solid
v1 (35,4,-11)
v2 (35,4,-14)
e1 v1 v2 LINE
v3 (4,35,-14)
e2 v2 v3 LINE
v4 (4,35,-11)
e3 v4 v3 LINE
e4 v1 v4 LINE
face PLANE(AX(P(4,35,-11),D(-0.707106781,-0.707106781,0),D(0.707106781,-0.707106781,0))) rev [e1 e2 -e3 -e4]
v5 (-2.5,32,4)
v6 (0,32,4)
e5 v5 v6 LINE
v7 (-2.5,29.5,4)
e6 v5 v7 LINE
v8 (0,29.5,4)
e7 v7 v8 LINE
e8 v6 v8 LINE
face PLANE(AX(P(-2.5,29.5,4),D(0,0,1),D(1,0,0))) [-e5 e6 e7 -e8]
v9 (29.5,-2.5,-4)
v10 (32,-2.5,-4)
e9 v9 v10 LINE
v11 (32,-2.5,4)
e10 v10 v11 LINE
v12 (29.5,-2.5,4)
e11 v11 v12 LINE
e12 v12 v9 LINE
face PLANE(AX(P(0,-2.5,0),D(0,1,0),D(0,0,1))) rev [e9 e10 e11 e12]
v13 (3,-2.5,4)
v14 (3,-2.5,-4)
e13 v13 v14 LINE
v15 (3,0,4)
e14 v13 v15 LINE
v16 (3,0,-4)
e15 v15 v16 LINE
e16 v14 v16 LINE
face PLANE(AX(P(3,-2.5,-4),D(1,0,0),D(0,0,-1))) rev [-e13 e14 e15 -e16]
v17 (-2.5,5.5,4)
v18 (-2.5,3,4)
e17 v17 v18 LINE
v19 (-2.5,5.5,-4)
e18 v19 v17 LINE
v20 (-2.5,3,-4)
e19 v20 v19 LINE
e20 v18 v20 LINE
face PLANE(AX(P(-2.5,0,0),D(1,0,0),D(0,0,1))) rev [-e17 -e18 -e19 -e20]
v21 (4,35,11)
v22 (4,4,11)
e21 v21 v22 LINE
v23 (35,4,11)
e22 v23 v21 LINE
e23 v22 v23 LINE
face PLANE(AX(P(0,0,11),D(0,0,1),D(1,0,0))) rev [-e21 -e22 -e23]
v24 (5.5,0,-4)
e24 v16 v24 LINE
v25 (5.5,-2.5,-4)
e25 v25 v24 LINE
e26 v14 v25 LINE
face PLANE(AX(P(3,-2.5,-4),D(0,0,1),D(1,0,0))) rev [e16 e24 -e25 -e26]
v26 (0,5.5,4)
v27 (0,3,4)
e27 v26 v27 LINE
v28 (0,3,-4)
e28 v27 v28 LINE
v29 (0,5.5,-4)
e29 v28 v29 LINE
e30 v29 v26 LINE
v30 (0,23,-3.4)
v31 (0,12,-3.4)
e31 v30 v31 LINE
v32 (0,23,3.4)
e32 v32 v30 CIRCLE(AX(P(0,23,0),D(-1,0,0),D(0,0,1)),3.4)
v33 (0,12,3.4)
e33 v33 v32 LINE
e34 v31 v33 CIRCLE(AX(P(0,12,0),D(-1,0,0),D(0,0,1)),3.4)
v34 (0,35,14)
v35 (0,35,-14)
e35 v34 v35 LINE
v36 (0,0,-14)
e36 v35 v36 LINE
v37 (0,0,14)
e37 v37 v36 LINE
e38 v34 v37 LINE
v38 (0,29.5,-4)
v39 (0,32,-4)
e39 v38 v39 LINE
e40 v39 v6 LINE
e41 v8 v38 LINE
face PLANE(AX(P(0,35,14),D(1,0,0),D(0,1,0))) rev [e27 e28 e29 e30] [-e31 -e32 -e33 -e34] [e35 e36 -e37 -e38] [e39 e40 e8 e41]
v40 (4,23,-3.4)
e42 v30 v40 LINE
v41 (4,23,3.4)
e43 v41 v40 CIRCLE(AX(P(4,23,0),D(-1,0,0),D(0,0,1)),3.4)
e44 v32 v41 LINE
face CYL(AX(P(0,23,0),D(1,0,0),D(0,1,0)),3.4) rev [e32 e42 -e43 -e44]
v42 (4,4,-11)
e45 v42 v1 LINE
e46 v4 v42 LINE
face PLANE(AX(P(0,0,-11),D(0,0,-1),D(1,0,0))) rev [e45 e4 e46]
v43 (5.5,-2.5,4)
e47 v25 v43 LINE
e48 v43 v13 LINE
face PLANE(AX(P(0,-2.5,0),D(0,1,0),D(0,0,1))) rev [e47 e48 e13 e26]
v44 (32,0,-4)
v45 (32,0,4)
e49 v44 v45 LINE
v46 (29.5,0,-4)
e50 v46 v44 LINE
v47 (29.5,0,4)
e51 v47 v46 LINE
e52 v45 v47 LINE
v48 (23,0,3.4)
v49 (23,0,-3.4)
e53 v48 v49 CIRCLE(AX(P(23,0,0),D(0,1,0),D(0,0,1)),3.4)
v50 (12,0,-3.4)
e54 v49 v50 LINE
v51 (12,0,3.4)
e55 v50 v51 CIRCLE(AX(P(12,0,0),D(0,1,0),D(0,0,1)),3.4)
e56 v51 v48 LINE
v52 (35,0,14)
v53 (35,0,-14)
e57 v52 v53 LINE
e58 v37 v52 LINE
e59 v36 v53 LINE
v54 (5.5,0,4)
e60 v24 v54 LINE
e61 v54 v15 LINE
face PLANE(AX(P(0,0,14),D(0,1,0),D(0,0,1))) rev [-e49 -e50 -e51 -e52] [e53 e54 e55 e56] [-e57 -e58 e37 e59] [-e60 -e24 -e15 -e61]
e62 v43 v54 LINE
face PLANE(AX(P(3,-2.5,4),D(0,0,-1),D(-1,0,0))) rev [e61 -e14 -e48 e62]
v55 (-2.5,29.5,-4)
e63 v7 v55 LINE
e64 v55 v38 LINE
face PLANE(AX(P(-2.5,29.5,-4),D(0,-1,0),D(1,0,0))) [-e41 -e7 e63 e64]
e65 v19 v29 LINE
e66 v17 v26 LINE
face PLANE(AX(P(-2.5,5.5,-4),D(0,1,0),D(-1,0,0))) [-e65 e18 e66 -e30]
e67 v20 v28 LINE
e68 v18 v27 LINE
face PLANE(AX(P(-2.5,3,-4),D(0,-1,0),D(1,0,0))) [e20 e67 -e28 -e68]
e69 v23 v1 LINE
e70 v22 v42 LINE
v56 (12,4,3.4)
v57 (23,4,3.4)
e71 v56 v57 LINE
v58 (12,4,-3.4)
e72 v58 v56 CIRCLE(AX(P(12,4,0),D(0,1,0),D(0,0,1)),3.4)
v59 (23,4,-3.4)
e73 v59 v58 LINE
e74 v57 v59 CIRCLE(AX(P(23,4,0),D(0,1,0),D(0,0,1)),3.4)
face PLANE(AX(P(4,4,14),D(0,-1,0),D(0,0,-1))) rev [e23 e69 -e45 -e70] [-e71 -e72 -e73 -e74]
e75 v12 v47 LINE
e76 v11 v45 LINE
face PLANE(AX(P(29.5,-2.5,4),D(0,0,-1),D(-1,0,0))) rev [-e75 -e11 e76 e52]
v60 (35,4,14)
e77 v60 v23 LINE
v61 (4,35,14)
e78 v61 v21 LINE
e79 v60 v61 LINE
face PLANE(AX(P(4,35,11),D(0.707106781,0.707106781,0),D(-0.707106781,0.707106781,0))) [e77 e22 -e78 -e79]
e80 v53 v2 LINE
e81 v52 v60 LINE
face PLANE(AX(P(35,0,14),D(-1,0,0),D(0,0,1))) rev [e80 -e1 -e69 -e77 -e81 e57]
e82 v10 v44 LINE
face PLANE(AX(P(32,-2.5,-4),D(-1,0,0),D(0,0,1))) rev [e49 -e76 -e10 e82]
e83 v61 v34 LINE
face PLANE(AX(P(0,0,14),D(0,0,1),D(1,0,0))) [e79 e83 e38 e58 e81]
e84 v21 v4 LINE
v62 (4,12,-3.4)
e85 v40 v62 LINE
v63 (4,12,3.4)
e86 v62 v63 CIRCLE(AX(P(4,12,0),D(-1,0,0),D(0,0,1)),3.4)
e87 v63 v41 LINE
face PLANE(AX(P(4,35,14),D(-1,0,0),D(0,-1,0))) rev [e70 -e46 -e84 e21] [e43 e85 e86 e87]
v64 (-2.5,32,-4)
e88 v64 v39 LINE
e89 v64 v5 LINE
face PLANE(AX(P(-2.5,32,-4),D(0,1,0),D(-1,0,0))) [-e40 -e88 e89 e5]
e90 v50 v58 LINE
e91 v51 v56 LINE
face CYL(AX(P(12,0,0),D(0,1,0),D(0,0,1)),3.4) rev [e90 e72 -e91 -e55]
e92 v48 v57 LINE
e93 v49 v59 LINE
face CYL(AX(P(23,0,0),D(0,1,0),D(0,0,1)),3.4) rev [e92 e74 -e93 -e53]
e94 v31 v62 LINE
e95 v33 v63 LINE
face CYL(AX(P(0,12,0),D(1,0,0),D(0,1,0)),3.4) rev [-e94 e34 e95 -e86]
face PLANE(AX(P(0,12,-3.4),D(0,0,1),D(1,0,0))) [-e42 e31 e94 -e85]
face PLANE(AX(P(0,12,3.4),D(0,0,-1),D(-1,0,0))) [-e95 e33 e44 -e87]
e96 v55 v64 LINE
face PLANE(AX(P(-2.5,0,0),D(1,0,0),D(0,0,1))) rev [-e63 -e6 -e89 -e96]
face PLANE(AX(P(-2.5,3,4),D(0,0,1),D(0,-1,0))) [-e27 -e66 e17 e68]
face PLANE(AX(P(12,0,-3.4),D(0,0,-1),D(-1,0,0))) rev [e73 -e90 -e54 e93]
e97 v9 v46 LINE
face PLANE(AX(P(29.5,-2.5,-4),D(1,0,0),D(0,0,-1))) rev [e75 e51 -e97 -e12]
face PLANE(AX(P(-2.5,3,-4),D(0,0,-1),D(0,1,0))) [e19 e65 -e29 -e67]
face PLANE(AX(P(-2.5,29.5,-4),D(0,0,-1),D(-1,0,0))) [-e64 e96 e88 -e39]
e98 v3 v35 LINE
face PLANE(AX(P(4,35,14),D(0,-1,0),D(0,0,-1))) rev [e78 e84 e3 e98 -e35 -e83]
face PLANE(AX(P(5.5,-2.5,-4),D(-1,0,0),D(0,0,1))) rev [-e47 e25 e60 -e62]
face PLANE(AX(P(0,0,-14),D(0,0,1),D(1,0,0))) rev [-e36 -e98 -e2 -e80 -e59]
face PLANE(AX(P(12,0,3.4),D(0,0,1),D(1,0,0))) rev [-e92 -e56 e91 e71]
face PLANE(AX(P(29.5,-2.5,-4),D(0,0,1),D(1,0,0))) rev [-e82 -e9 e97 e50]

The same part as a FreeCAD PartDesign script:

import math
import FreeCAD as App
import Part
import Sketcher

V = App.Vector

doc = App.newDocument("Part")
body = doc.addObject("PartDesign::Body", "Body")

# Sketch on XY plane
sketch1 = body.newObject("Sketcher::SketchObject", "Sketch")
sketch1.AttachmentSupport = (doc.getObject("XY_Plane"), [""])
sketch1.MapMode = "FlatFace"
sketch1.addGeometry(Part.LineSegment(V(0, 35, 0), V(0, 0, 0)), False)
sketch1.addGeometry(Part.LineSegment(V(0, 0, 0), V(35, 0, 0)), False)
sketch1.addGeometry(Part.LineSegment(V(35, 0, 0), V(35, 4, 0)), False)
sketch1.addGeometry(Part.LineSegment(V(35, 4, 0), V(4, 4, 0)), False)
sketch1.addGeometry(Part.LineSegment(V(4, 4, 0), V(4, 35, 0)), False)
sketch1.addGeometry(Part.LineSegment(V(4, 35, 0), V(0, 35, 0)), False)
sketch1.addConstraint(Sketcher.Constraint("Coincident", 0, 2, 1, 1))
sketch1.addConstraint(Sketcher.Constraint("Coincident", 1, 2, 2, 1))
sketch1.addConstraint(Sketcher.Constraint("Coincident", 2, 2, 3, 1))
sketch1.addConstraint(Sketcher.Constraint("Coincident", 3, 2, 4, 1))
sketch1.addConstraint(Sketcher.Constraint("Coincident", 4, 2, 5, 1))
sketch1.addConstraint(Sketcher.Constraint("Coincident", 5, 2, 0, 1))
sketch1.addConstraint(Sketcher.Constraint("Vertical", 0))
sketch1.addConstraint(Sketcher.Constraint("Horizontal", 1))
sketch1.addConstraint(Sketcher.Constraint("Vertical", 2))
sketch1.addConstraint(Sketcher.Constraint("Horizontal", 3))
sketch1.addConstraint(Sketcher.Constraint("Vertical", 4))
sketch1.addConstraint(Sketcher.Constraint("Horizontal", 5))
sketch1.addConstraint(Sketcher.Constraint("Coincident", 0, 2, -1, 1))
sketch1.addConstraint(Sketcher.Constraint("Equal", 1, 0))
sketch1.addConstraint(Sketcher.Constraint("Equal", 5, 2))
sketch1.addConstraint(Sketcher.Constraint("DistanceX", 1, 1, 1, 2, 35.0))
sketch1.addConstraint(Sketcher.Constraint("DistanceX", 3, 2, 3, 1, 31.0))
pad1 = body.newObject("PartDesign::Pad", "Pad")
pad1.Profile = sketch1
pad1.Length = 28
pad1.Midplane = True

# Sketch on XY plane
sketch2 = body.newObject("Sketcher::SketchObject", "Sketch001")
sketch2.AttachmentSupport = (doc.getObject("XY_Plane"), [""])
sketch2.MapMode = "FlatFace"
sketch2.AttachmentOffset = App.Placement(V(0, 0, 14), App.Rotation())
sketch2.addGeometry(Part.LineSegment(V(35, 4, 0), V(4, 35, 0)), False)
sketch2.addGeometry(Part.LineSegment(V(4, 35, 0), V(4, 4, 0)), False)
sketch2.addGeometry(Part.LineSegment(V(4, 4, 0), V(35, 4, 0)), False)
sketch2.addConstraint(Sketcher.Constraint("Coincident", 0, 2, 1, 1))
sketch2.addConstraint(Sketcher.Constraint("Coincident", 1, 2, 2, 1))
sketch2.addConstraint(Sketcher.Constraint("Coincident", 2, 2, 0, 1))
sketch2.addConstraint(Sketcher.Constraint("Vertical", 1))
sketch2.addConstraint(Sketcher.Constraint("Horizontal", 2))
sketch2.addConstraint(Sketcher.Constraint("Equal", 2, 1))
sketch2.addConstraint(Sketcher.Constraint("DistanceX", 2, 1, 2, 2, 31.0))
sketch2.addConstraint(Sketcher.Constraint("DistanceX", -1, 1, 0, 2, 4.0))
sketch2.addConstraint(Sketcher.Constraint("DistanceY", -1, 1, 0, 2, 35.0))
pad2 = body.newObject("PartDesign::Pad", "Pad001")
pad2.Profile = sketch2
pad2.Length = 3
pad2.Reversed = True
doc.recompute()

mirrored = body.newObject("PartDesign::Mirrored", "Mirrored")
mirrored.Originals = [pad2]
mirrored.MirrorPlane = (doc.getObject("XY_Plane"), [""])
body.Tip = mirrored

# Sketch on XZ plane
sketch3 = body.newObject("Sketcher::SketchObject", "Sketch002")
sketch3.AttachmentSupport = (doc.getObject("XZ_Plane"), [""])
sketch3.MapMode = "FlatFace"
sketch3.AttachmentOffset = App.Placement(V(0, 0, -4), App.Rotation())
sketch3.addGeometry(Part.LineSegment(V(23, -3.4, 0), V(12, -3.4, 0)), False)
sketch3.addGeometry(Part.ArcOfCircle(Part.Circle(V(12, 0, 0), V(0, 0, 1), 3.4), math.radians(90), math.radians(270)), False)
sketch3.addGeometry(Part.LineSegment(V(12, 3.4, 0), V(23, 3.4, 0)), False)
sketch3.addGeometry(Part.ArcOfCircle(Part.Circle(V(23, 0, 0), V(0, 0, 1), 3.4), math.radians(-90), math.radians(90)), False)
sketch3.addConstraint(Sketcher.Constraint("Tangent", 0, 2, 1, 2))
sketch3.addConstraint(Sketcher.Constraint("Tangent", 1, 1, 2, 1))
sketch3.addConstraint(Sketcher.Constraint("Tangent", 2, 2, 3, 2))
sketch3.addConstraint(Sketcher.Constraint("Tangent", 3, 1, 0, 1))
sketch3.addConstraint(Sketcher.Constraint("Horizontal", 0))
sketch3.addConstraint(Sketcher.Constraint("Horizontal", 2))
sketch3.addConstraint(Sketcher.Constraint("PointOnObject", 1, 3, -1))
sketch3.addConstraint(Sketcher.Constraint("Radius", 1, 3.4))
sketch3.addConstraint(Sketcher.Constraint("DistanceX", 0, 2, 0, 1, 11.0))
sketch3.addConstraint(Sketcher.Constraint("DistanceX", -1, 1, 1, 3, 12.0))
pocket1 = body.newObject("PartDesign::Pocket", "Pocket")
pocket1.Profile = sketch3
pocket1.Type = "ThroughAll"
pocket1.Reversed = True

# Sketch on XZ plane
sketch4 = body.newObject("Sketcher::SketchObject", "Sketch003")
sketch4.AttachmentSupport = (doc.getObject("XZ_Plane"), [""])
sketch4.MapMode = "FlatFace"
sketch4.addGeometry(Part.LineSegment(V(3, 4, 0), V(3, -4, 0)), False)
sketch4.addGeometry(Part.LineSegment(V(3, -4, 0), V(5.5, -4, 0)), False)
sketch4.addGeometry(Part.LineSegment(V(5.5, -4, 0), V(5.5, 4, 0)), False)
sketch4.addGeometry(Part.LineSegment(V(5.5, 4, 0), V(3, 4, 0)), False)
sketch4.addGeometry(Part.LineSegment(V(29.5, 4, 0), V(29.5, -4, 0)), False)
sketch4.addGeometry(Part.LineSegment(V(29.5, -4, 0), V(32, -4, 0)), False)
sketch4.addGeometry(Part.LineSegment(V(32, -4, 0), V(32, 4, 0)), False)
sketch4.addGeometry(Part.LineSegment(V(32, 4, 0), V(29.5, 4, 0)), False)
sketch4.addConstraint(Sketcher.Constraint("Coincident", 0, 2, 1, 1))
sketch4.addConstraint(Sketcher.Constraint("Coincident", 1, 2, 2, 1))
sketch4.addConstraint(Sketcher.Constraint("Coincident", 2, 2, 3, 1))
sketch4.addConstraint(Sketcher.Constraint("Coincident", 3, 2, 0, 1))
sketch4.addConstraint(Sketcher.Constraint("Coincident", 4, 2, 5, 1))
sketch4.addConstraint(Sketcher.Constraint("Coincident", 5, 2, 6, 1))
sketch4.addConstraint(Sketcher.Constraint("Coincident", 6, 2, 7, 1))
sketch4.addConstraint(Sketcher.Constraint("Coincident", 7, 2, 4, 1))
sketch4.addConstraint(Sketcher.Constraint("Vertical", 0))
sketch4.addConstraint(Sketcher.Constraint("Horizontal", 1))
sketch4.addConstraint(Sketcher.Constraint("Vertical", 2))
sketch4.addConstraint(Sketcher.Constraint("Horizontal", 3))
sketch4.addConstraint(Sketcher.Constraint("Vertical", 4))
sketch4.addConstraint(Sketcher.Constraint("Horizontal", 5))
sketch4.addConstraint(Sketcher.Constraint("Vertical", 6))
sketch4.addConstraint(Sketcher.Constraint("Horizontal", 7))
sketch4.addConstraint(Sketcher.Constraint("Horizontal", 1, 2, 4, 2))
sketch4.addConstraint(Sketcher.Constraint("Horizontal", 3, 2, 6, 2))
sketch4.addConstraint(Sketcher.Constraint("Equal", 3, 5))
sketch4.addConstraint(Sketcher.Constraint("DistanceY", 0, 2, 0, 1, 8.0))
sketch4.addConstraint(Sketcher.Constraint("DistanceX", 1, 1, 1, 2, 2.5))
sketch4.addConstraint(Sketcher.Constraint("DistanceX", -1, 1, 0, 2, 3.0))
sketch4.addConstraint(Sketcher.Constraint("DistanceY", 0, 2, -1, 1, 4.0))
sketch4.addConstraint(Sketcher.Constraint("DistanceX", -1, 1, 5, 2, 32.0))
pad3 = body.newObject("PartDesign::Pad", "Pad002")
pad3.Profile = sketch4
pad3.Length = 2.5
doc.recompute()

datumplane = body.newObject("PartDesign::Plane", "DatumPlane")
datumplane.Placement = App.Placement(V(0, 0, 0), App.Rotation(V(0.707106781, 0.707106781, 0), V(0, 0, -1), V(-0.707106781, 0.707106781, 0), "ZXY"))
mirrored2 = body.newObject("PartDesign::Mirrored", "Mirrored001")
mirrored2.Originals = [pocket1, pad3]
mirrored2.MirrorPlane = (datumplane, [""])
body.Tip = mirrored2

doc.recompute()
